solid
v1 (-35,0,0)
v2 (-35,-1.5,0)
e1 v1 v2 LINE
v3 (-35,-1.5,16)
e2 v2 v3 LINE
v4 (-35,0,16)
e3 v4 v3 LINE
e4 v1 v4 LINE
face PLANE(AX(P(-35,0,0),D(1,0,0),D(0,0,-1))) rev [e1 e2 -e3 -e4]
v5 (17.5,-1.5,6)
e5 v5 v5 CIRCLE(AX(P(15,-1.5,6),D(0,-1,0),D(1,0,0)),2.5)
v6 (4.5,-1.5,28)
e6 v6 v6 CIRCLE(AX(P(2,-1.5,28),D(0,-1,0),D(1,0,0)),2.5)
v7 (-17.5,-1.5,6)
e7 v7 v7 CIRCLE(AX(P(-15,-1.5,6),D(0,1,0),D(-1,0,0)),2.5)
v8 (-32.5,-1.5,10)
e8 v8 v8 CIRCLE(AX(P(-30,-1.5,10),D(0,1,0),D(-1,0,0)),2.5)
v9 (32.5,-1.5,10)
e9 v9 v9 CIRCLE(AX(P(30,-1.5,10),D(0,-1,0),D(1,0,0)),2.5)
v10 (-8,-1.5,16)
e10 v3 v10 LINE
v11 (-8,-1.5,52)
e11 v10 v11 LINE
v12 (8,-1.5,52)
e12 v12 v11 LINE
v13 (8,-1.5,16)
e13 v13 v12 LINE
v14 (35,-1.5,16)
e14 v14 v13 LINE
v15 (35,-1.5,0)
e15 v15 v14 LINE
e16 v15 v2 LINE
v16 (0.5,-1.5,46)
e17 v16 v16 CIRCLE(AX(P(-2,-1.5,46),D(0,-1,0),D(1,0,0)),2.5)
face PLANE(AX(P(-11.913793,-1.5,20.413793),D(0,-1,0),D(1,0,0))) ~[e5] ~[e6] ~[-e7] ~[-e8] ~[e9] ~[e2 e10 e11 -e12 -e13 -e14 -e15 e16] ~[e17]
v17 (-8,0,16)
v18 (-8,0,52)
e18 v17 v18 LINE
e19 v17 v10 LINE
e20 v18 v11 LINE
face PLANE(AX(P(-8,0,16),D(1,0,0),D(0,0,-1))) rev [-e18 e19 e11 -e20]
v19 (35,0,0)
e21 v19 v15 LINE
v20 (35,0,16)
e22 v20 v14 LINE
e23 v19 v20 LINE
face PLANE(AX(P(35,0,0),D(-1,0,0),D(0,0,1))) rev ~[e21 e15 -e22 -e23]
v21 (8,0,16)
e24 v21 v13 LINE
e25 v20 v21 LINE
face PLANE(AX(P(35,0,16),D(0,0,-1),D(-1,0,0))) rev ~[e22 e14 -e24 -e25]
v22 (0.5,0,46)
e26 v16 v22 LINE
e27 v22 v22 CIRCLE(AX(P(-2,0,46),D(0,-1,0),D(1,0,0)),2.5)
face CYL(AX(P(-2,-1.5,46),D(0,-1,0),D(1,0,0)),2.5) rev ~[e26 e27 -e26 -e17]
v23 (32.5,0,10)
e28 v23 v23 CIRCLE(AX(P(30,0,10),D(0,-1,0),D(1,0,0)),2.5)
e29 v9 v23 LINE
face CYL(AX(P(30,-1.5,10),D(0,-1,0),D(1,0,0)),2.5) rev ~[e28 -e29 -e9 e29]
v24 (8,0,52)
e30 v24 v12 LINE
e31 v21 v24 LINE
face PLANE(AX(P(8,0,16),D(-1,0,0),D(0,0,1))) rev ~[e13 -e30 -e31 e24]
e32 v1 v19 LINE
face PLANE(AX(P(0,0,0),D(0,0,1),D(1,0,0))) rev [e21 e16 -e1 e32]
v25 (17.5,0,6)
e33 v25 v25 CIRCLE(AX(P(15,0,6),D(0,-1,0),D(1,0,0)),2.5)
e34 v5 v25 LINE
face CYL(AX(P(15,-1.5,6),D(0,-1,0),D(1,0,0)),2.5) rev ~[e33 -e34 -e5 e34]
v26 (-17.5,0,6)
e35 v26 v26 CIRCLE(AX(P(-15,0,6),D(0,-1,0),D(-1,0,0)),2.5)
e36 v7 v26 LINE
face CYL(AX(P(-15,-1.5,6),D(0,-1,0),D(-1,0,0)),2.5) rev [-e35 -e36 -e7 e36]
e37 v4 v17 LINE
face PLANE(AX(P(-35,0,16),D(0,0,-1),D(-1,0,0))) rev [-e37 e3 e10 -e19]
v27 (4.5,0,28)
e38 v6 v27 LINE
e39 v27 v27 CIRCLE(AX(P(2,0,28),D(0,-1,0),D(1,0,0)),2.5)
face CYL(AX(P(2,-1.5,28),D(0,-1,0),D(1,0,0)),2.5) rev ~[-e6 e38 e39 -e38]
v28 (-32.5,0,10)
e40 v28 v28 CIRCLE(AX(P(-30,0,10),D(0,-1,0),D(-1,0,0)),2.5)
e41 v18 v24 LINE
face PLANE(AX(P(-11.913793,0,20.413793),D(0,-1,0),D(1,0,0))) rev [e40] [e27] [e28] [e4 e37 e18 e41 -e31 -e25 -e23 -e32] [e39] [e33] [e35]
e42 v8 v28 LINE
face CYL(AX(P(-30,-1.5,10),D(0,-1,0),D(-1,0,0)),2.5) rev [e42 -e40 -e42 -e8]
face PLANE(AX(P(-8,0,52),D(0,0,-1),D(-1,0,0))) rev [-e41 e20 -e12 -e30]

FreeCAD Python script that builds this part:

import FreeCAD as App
import Part
import Sketcher
from FreeCAD import Vector
Q = App.Units.Quantity


def add_polygon(sketch, points):
    """Adds a closed chain of lines whose ends are joined by coincident constraints."""
    first, n = sketch.GeometryCount, len(points)
    for a, b in zip(points, points[1:] + points[:1]):
        sketch.addGeometry(Part.LineSegment(App.Vector(*a, 0), App.Vector(*b, 0)), False)
    for i in range(n):
        sketch.addConstraint(Sketcher.Constraint("Coincident", first + i, 2, first + (i + 1) % n, 1))

doc = App.newDocument("Part")
params = doc.addObject("Spreadsheet::Sheet", "Params")
for row, (alias, value) in enumerate([
    ("sketch1_width", "35 mm"),
    ("sketch1_width2", "27 mm"),
    ("sketch1_height", "16 mm"),
    ("sketch1_height2", "36 mm"),
    ("pad1_length", "1.5 mm"),
    ("sketch2_diameter", "5 mm"),
    ("sketch3_diameter", "5 mm"),
], start=1):
    params.set(f"A{row}", alias)
    params.set(f"B{row}", "=" + value)
    params.setAlias(f"B{row}", alias)

body = doc.addObject("PartDesign::Body", "Body")

# Sketch on XZ plane
sketch1 = body.newObject("Sketcher::SketchObject", "Sketch")
sketch1.AttachmentSupport = (doc.getObject("XZ_Plane"), [""])
sketch1.MapMode = "FlatFace"
add_polygon(sketch1, [(0, 0), (35, 0), (35, 16), (8, 16), (8, 52), (0, 52)])  # lines 0-5
sketch1.addConstraint(Sketcher.Constraint("Horizontal", 0))
sketch1.addConstraint(Sketcher.Constraint("Vertical", 1))
sketch1.addConstraint(Sketcher.Constraint("Horizontal", 2))
sketch1.addConstraint(Sketcher.Constraint("Vertical", 3))
sketch1.addConstraint(Sketcher.Constraint("Horizontal", 4))
sketch1.addConstraint(Sketcher.Constraint("Vertical", 5))
sketch1.addConstraint(Sketcher.Constraint("Coincident", 5, 2, -1, 1))
sketch1.addConstraint(Sketcher.Constraint("DistanceX", 0, 1, 0, 2, Q("35 mm")))
sketch1.addConstraint(Sketcher.Constraint("DistanceX", 2, 2, 2, 1, Q("27 mm")))
sketch1.addConstraint(Sketcher.Constraint("DistanceY", 1, 1, 1, 2, Q("16 mm")))
sketch1.addConstraint(Sketcher.Constraint("DistanceY", 3, 1, 3, 2, Q("36 mm")))
sketch1.setExpression("Constraints[13]", "Params.sketch1_width")
sketch1.setExpression("Constraints[14]", "Params.sketch1_width2")
sketch1.setExpression("Constraints[15]", "Params.sketch1_height")
sketch1.setExpression("Constraints[16]", "Params.sketch1_height2")
pad1 = body.newObject("PartDesign::Pad", "Pad")
pad1.Profile = sketch1
pad1.setExpression("Length", "Params.pad1_length")

# Sketch on XZ plane
sketch2 = body.newObject("Sketcher::SketchObject", "Sketch001")
sketch2.AttachmentSupport = (doc.getObject("XZ_Plane"), [""])
sketch2.MapMode = "FlatFace"
sketch2.AttachmentOffset = App.Placement(Vector(0, 0, 1.5), App.Rotation())
sketch2.addGeometry(Part.Circle(Vector(30, 10, 0), Vector(0, 0, 1), 2.5), False)
sketch2.addGeometry(Part.Circle(Vector(15, 6, 0), Vector(0, 0, 1), 2.5), False)
sketch2.addConstraint(Sketcher.Constraint("Equal", 0, 1))
sketch2.addConstraint(Sketcher.Constraint("Diameter", 0, Q("5 mm")))
sketch2.addConstraint(Sketcher.Constraint("DistanceX", -1, 1, 0, 3, Q("30 mm")))
sketch2.addConstraint(Sketcher.Constraint("DistanceY", -1, 1, 0, 3, Q("10 mm")))
sketch2.addConstraint(Sketcher.Constraint("DistanceX", -1, 1, 1, 3, Q("15 mm")))
sketch2.addConstraint(Sketcher.Constraint("DistanceY", -1, 1, 1, 3, Q("6 mm")))
sketch2.setExpression("Constraints[1]", "Params.sketch2_diameter")
pocket1 = body.newObject("PartDesign::Pocket", "Pocket")
pocket1.Profile = sketch2
pocket1.Type = "ThroughAll"
doc.recompute()

mirrored = body.newObject("PartDesign::Mirrored", "Mirrored")
mirrored.Originals = [pad1, pocket1]
mirrored.MirrorPlane = (doc.getObject("YZ_Plane"), [""])
body.Tip = mirrored

# Sketch on XZ plane
sketch3 = body.newObject("Sketcher::SketchObject", "Sketch002")
sketch3.AttachmentSupport = (doc.getObject("XZ_Plane"), [""])
sketch3.MapMode = "FlatFace"
sketch3.AttachmentOffset = App.Placement(Vector(0, 0, 1.5), App.Rotation())
sketch3.addGeometry(Part.Circle(Vector(2, 28, 0), Vector(0, 0, 1), 2.5), False)
sketch3.addGeometry(Part.Circle(Vector(-2, 46, 0), Vector(0, 0, 1), 2.5), False)
sketch3.addConstraint(Sketcher.Constraint("Equal", 0, 1))
sketch3.addConstraint(Sketcher.Constraint("Diameter", 0, Q("5 mm")))
sketch3.addConstraint(Sketcher.Constraint("DistanceX", -1, 1, 0, 3, Q("2 mm")))
sketch3.addConstraint(Sketcher.Constraint("DistanceY", -1, 1, 0, 3, Q("28 mm")))
sketch3.addConstraint(Sketcher.Constraint("DistanceX", 1, 3, -1, 1, Q("2 mm")))
sketch3.addConstraint(Sketcher.Constraint("DistanceY", -1, 1, 1, 3, Q("46 mm")))
sketch3.setExpression("Constraints[1]", "Params.sketch3_diameter")
pocket2 = body.newObject("PartDesign::Pocket", "Pocket001")
pocket2.Profile = sketch3
pocket2.Type = "ThroughAll"

doc.recompute()
